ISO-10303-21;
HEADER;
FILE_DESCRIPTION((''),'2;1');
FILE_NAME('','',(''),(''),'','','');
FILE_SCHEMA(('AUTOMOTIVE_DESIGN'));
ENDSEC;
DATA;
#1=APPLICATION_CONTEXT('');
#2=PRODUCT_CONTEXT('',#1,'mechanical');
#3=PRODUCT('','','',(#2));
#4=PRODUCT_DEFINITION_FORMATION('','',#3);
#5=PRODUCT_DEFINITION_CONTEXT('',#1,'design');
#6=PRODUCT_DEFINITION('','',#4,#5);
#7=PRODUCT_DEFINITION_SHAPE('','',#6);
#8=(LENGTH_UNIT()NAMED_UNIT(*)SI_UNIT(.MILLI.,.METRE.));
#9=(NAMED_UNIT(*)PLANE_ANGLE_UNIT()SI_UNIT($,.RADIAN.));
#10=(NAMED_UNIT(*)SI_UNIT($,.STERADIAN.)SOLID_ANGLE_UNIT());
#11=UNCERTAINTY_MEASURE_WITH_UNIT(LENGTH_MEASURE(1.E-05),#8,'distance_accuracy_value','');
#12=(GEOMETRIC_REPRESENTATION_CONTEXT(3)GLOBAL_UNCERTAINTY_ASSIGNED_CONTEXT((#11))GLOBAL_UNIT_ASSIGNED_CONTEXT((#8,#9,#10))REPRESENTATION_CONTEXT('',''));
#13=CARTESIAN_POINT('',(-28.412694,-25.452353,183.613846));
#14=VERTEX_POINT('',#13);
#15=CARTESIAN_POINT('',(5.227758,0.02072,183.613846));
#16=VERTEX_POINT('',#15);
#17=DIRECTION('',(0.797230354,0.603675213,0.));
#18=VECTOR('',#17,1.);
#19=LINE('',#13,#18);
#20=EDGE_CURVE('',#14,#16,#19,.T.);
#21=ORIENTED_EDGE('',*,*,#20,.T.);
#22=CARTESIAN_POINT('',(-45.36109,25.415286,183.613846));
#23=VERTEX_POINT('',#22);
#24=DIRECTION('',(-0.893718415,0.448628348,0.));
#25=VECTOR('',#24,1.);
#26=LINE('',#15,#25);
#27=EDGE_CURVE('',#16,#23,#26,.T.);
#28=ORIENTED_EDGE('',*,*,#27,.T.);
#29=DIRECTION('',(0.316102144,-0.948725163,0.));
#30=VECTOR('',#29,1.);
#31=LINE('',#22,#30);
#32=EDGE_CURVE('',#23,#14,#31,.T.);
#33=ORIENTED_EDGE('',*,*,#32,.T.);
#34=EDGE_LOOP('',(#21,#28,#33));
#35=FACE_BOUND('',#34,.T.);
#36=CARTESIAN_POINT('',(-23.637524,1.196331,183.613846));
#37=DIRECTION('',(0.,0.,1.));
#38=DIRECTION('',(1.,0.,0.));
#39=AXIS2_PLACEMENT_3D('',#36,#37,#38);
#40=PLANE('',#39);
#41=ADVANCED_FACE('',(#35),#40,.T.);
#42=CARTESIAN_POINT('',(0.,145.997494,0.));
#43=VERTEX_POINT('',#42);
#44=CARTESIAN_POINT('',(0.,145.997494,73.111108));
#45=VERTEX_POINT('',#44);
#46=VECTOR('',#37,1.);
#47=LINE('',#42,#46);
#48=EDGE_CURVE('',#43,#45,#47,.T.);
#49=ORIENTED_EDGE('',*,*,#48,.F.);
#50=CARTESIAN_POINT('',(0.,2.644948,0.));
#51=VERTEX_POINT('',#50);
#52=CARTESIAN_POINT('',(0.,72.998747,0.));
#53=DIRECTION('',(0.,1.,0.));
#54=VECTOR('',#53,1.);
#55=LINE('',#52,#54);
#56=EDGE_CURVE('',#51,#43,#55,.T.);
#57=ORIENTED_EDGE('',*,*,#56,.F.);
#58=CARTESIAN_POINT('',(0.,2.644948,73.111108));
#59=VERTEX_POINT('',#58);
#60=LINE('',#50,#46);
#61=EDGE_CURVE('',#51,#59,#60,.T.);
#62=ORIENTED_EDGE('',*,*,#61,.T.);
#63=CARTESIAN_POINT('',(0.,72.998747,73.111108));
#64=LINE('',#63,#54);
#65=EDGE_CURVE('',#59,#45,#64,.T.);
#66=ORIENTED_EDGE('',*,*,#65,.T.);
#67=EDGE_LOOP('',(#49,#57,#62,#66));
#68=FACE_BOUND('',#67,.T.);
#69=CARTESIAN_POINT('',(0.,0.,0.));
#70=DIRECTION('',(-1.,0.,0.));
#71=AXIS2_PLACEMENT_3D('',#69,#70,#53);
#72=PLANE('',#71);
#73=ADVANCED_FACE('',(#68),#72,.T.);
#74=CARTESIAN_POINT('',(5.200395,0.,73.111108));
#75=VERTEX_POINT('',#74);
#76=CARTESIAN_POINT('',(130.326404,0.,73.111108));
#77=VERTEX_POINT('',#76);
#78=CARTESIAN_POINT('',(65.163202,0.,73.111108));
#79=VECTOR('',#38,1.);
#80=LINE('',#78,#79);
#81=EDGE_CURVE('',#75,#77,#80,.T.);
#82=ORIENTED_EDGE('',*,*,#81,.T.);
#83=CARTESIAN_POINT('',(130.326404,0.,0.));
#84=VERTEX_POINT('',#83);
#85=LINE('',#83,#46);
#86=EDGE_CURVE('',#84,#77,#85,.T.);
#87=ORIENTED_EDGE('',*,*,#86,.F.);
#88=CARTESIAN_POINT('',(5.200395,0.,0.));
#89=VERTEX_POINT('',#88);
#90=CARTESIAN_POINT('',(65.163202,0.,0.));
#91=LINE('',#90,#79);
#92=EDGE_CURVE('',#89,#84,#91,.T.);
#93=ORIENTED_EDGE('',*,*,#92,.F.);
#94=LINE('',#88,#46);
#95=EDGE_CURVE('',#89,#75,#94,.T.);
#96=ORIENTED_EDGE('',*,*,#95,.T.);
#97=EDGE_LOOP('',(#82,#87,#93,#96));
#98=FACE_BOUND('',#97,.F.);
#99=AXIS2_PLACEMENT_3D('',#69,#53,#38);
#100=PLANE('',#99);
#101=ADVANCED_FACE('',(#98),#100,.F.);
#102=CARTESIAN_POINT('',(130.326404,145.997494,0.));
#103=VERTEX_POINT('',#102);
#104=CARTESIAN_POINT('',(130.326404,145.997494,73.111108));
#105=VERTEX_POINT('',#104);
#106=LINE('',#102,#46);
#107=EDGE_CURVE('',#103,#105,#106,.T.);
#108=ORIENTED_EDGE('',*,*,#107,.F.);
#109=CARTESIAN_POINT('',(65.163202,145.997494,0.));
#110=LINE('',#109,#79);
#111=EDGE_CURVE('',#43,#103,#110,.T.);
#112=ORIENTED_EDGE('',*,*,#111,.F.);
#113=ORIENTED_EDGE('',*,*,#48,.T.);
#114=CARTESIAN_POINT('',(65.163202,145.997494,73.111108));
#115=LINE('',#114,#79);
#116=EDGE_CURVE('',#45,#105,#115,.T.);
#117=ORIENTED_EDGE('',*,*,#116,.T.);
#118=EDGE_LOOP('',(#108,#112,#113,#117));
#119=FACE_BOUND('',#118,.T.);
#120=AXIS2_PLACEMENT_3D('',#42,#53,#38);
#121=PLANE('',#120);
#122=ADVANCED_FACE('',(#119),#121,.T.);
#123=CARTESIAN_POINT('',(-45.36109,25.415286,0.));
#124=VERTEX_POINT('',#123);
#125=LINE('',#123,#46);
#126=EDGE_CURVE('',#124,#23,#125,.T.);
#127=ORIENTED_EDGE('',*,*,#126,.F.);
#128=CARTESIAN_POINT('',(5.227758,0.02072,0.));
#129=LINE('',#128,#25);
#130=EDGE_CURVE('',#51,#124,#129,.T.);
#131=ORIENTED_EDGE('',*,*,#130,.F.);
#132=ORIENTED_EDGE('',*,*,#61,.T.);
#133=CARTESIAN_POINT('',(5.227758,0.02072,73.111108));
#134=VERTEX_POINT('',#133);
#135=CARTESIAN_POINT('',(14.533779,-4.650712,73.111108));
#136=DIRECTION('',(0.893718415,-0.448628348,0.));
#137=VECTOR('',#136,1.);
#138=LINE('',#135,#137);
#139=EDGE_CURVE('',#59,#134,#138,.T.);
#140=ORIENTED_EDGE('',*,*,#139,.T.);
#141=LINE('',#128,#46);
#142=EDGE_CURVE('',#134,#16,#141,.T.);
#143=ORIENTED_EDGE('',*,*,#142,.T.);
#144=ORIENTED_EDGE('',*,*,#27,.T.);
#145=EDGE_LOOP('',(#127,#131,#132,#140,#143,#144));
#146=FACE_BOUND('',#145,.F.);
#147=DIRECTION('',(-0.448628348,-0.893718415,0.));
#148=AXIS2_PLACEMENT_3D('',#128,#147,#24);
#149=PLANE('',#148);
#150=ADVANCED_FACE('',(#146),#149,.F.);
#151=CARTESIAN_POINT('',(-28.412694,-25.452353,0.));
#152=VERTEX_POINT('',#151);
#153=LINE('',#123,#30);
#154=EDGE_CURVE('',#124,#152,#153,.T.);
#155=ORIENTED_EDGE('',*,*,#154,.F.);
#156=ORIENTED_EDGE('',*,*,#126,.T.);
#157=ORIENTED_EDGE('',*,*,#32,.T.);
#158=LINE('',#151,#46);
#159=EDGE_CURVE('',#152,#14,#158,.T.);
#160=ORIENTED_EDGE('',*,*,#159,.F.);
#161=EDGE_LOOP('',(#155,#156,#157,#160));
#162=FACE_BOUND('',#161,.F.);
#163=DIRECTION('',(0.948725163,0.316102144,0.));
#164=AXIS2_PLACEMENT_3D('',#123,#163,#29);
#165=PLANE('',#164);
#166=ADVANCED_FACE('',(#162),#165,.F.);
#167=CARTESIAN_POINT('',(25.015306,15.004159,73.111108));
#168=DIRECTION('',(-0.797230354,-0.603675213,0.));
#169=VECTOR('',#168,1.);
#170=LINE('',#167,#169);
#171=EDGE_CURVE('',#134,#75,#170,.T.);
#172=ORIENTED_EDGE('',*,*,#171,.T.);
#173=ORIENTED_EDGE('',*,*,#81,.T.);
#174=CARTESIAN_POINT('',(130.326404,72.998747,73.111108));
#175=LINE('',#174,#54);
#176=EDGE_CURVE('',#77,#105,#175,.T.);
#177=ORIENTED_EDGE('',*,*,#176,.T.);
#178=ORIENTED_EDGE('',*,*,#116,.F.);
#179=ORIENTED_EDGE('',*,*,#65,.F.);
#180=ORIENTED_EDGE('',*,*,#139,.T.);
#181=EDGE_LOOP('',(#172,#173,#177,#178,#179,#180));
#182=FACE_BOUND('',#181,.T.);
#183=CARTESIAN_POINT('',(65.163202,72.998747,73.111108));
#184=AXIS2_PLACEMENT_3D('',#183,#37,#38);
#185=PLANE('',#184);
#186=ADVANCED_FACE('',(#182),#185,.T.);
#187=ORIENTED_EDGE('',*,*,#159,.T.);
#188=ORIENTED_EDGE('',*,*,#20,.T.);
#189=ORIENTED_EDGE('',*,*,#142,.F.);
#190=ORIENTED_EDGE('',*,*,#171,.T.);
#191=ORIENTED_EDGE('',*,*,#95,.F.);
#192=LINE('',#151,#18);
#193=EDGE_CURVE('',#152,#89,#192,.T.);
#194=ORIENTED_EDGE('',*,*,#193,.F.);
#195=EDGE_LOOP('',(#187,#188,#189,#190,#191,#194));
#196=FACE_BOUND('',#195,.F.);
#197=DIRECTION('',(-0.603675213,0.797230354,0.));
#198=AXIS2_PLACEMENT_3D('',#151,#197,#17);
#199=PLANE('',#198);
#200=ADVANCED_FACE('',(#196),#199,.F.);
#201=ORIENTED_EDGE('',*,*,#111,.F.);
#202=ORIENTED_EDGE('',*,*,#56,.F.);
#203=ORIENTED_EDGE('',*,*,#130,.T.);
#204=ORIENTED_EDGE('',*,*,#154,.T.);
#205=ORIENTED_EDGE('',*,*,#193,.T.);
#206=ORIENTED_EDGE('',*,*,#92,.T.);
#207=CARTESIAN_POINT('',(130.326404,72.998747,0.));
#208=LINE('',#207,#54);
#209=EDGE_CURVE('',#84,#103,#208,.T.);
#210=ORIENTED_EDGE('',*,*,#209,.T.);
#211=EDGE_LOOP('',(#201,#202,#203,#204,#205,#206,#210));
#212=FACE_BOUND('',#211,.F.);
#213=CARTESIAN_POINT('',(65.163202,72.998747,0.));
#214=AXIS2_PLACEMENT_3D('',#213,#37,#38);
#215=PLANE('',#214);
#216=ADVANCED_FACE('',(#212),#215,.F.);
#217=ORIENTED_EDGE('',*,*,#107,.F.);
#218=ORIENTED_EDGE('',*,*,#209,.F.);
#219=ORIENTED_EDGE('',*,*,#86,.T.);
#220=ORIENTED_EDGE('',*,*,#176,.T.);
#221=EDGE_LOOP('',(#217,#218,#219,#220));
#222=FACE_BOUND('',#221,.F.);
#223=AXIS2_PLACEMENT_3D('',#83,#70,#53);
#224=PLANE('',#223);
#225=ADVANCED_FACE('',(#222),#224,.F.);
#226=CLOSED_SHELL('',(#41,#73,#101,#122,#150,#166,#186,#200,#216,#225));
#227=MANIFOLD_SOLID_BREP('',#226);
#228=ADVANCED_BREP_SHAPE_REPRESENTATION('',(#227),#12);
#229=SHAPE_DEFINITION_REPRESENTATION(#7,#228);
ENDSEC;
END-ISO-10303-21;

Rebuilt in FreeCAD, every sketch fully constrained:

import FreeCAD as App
import Part
import Sketcher
Q = App.Units.Quantity

doc = App.newDocument("Part")
body = doc.addObject("PartDesign::Body", "Body")

# Sketch on XY plane
sketch1 = body.newObject("Sketcher::SketchObject", "Sketch")
sketch1.AttachmentSupport = (doc.getObject("XY_Plane"), [""])
sketch1.MapMode = "FlatFace"
sketch1.addGeometry([
    Part.LineSegment(App.Vector(0, 145.997494, 0), App.Vector(0, 0, 0)),
    Part.LineSegment(App.Vector(0, 0, 0), App.Vector(130.326404, 0, 0)),
    Part.LineSegment(App.Vector(130.326404, 0, 0), App.Vector(130.326404, 145.997494, 0)),
    Part.LineSegment(App.Vector(130.326404, 145.997494, 0), App.Vector(0, 145.997494, 0)),
], False)
sketch1.addConstraint([
    Sketcher.Constraint("Coincident", 0, 2, 1, 1),
    Sketcher.Constraint("Coincident", 1, 2, 2, 1),
    Sketcher.Constraint("Coincident", 2, 2, 3, 1),
    Sketcher.Constraint("Coincident", 3, 2, 0, 1),
    Sketcher.Constraint("Vertical", 0),
    Sketcher.Constraint("Horizontal", 1),
    Sketcher.Constraint("Vertical", 2),
    Sketcher.Constraint("Horizontal", 3),
    Sketcher.Constraint("Coincident", 0, 2, -1, 1),
    Sketcher.Constraint("DistanceX", 1, 1, 1, 2, Q("130.326405 mm")),
    Sketcher.Constraint("DistanceY", 0, 2, 0, 1, Q("145.997494 mm")),
])
pad1 = body.newObject("PartDesign::Pad", "Pad")
pad1.Profile = sketch1
pad1.Length = 73.111108

# Sketch on XY plane
sketch2 = body.newObject("Sketcher::SketchObject", "Sketch001")
sketch2.AttachmentSupport = (doc.getObject("XY_Plane"), [""])
sketch2.MapMode = "FlatFace"
sketch2.addGeometry([
    Part.LineSegment(App.Vector(5.227758, 0.02072, 0), App.Vector(-45.36109, 25.415286, 0)),
    Part.LineSegment(App.Vector(-45.36109, 25.415286, 0), App.Vector(-28.412694, -25.452353, 0)),
    Part.LineSegment(App.Vector(-28.412694, -25.452353, 0), App.Vector(5.227758, 0.02072, 0)),
], False)
sketch2.addConstraint([
    Sketcher.Constraint("Coincident", 0, 2, 1, 1),
    Sketcher.Constraint("Coincident", 1, 2, 2, 1),
    Sketcher.Constraint("Coincident", 2, 2, 0, 1),
    Sketcher.Constraint("DistanceX", 0, 2, -1, 1, Q("45.36109 mm")),
    Sketcher.Constraint("DistanceY", -1, 1, 2, 2, Q("0.02072 mm")),
    Sketcher.Constraint("DistanceY", 1, 2, 0, 2, Q("50.867639 mm")),
    Sketcher.Constraint("DistanceX", 1, 2, 2, 2, Q("33.640452 mm")),
    Sketcher.Constraint("Distance", 0, Q("56.604907 mm")),
    Sketcher.Constraint("Distance", 1, Q("53.616833 mm")),
])
pad2 = body.newObject("PartDesign::Pad", "Pad001")
pad2.Profile = sketch2
pad2.Length = 183.613846

doc.recompute()
